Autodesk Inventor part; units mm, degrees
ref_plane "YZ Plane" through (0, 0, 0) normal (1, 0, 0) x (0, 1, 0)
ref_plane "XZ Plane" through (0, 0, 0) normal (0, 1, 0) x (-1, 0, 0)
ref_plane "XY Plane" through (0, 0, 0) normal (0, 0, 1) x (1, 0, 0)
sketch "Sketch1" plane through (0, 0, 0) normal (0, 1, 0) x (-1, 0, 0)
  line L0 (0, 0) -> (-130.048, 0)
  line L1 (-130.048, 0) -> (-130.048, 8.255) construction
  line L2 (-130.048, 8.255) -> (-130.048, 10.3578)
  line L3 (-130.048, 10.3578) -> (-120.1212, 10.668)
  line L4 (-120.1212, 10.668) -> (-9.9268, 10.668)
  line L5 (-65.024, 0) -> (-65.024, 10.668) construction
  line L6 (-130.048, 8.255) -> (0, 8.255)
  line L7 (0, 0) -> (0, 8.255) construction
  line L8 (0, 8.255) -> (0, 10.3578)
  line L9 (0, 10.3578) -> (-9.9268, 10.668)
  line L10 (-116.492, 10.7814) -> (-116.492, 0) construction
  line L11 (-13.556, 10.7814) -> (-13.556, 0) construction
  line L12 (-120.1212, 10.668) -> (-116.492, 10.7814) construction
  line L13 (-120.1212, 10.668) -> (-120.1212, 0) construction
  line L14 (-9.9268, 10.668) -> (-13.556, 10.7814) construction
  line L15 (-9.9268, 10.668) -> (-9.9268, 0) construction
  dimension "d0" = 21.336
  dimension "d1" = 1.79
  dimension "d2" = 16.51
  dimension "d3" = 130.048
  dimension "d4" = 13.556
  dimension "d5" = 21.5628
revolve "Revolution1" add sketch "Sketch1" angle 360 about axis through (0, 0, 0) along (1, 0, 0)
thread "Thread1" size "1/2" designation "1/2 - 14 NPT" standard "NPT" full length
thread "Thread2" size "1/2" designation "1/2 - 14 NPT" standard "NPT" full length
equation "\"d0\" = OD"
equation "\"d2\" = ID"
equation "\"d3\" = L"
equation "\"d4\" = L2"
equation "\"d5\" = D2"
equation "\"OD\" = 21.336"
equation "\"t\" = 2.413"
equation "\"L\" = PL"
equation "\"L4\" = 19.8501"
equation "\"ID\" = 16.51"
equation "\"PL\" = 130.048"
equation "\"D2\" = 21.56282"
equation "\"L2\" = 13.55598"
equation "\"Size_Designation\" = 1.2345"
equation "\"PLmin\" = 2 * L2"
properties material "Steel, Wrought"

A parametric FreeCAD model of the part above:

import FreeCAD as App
import Part
import Sketcher
Q = App.Units.Quantity


def add_polygon(sketch, points):
    """Adds a closed chain of lines whose ends are joined by coincident constraints."""
    first, n = sketch.GeometryCount, len(points)
    for a, b in zip(points, points[1:] + points[:1]):
        sketch.addGeometry(Part.LineSegment(App.Vector(*a, 0), App.Vector(*b, 0)), False)
    for i in range(n):
        sketch.addConstraint(Sketcher.Constraint("Coincident", first + i, 2, first + (i + 1) % n, 1))

doc = App.newDocument("Part")
body = doc.addObject("PartDesign::Body", "Body")

sketch1 = body.newObject("Sketcher::SketchObject", "Sketch")
sketch1.AttachmentSupport = (doc.getObject("XZ_Plane"), [""])
sketch1.MapMode = "FlatFace"
add_polygon(sketch1, [(130, 10.4), (130, 8.3), (0, 8.3), (0, 10.4), (9.9, 10.7), (120.1, 10.7)])
sketch1.addConstraint([
    Sketcher.Constraint("Vertical", 0),
    Sketcher.Constraint("Horizontal", 1),
    Sketcher.Constraint("Vertical", 2),
    Sketcher.Constraint("Horizontal", 4),
    Sketcher.Constraint("PointOnObject", 1, 2, -2),
    Sketcher.Constraint("Horizontal", 2, 2, 5, 2),
    Sketcher.Constraint("Equal", 3, 5),
    Sketcher.Constraint("DistanceX", 1, 2, 1, 1, Q("5.12 in")),
    Sketcher.Constraint("Angle", 3, Q("1.7898 deg")),
    Sketcher.Constraint("DistanceY", -1, 1, 3, 2, Q("0.42 in")),
    Sketcher.Constraint("Distance", 3, Q("0.391 in")),
    Sketcher.Constraint("DistanceY", -1, 1, 0, 2, Q("0.325 in")),
])
revolution = body.newObject("PartDesign::Revolution", "Revolution")
revolution.Profile = sketch1
revolution.ReferenceAxis = (sketch1, ["H_Axis"])
revolution.Angle = 360

doc.recompute()
